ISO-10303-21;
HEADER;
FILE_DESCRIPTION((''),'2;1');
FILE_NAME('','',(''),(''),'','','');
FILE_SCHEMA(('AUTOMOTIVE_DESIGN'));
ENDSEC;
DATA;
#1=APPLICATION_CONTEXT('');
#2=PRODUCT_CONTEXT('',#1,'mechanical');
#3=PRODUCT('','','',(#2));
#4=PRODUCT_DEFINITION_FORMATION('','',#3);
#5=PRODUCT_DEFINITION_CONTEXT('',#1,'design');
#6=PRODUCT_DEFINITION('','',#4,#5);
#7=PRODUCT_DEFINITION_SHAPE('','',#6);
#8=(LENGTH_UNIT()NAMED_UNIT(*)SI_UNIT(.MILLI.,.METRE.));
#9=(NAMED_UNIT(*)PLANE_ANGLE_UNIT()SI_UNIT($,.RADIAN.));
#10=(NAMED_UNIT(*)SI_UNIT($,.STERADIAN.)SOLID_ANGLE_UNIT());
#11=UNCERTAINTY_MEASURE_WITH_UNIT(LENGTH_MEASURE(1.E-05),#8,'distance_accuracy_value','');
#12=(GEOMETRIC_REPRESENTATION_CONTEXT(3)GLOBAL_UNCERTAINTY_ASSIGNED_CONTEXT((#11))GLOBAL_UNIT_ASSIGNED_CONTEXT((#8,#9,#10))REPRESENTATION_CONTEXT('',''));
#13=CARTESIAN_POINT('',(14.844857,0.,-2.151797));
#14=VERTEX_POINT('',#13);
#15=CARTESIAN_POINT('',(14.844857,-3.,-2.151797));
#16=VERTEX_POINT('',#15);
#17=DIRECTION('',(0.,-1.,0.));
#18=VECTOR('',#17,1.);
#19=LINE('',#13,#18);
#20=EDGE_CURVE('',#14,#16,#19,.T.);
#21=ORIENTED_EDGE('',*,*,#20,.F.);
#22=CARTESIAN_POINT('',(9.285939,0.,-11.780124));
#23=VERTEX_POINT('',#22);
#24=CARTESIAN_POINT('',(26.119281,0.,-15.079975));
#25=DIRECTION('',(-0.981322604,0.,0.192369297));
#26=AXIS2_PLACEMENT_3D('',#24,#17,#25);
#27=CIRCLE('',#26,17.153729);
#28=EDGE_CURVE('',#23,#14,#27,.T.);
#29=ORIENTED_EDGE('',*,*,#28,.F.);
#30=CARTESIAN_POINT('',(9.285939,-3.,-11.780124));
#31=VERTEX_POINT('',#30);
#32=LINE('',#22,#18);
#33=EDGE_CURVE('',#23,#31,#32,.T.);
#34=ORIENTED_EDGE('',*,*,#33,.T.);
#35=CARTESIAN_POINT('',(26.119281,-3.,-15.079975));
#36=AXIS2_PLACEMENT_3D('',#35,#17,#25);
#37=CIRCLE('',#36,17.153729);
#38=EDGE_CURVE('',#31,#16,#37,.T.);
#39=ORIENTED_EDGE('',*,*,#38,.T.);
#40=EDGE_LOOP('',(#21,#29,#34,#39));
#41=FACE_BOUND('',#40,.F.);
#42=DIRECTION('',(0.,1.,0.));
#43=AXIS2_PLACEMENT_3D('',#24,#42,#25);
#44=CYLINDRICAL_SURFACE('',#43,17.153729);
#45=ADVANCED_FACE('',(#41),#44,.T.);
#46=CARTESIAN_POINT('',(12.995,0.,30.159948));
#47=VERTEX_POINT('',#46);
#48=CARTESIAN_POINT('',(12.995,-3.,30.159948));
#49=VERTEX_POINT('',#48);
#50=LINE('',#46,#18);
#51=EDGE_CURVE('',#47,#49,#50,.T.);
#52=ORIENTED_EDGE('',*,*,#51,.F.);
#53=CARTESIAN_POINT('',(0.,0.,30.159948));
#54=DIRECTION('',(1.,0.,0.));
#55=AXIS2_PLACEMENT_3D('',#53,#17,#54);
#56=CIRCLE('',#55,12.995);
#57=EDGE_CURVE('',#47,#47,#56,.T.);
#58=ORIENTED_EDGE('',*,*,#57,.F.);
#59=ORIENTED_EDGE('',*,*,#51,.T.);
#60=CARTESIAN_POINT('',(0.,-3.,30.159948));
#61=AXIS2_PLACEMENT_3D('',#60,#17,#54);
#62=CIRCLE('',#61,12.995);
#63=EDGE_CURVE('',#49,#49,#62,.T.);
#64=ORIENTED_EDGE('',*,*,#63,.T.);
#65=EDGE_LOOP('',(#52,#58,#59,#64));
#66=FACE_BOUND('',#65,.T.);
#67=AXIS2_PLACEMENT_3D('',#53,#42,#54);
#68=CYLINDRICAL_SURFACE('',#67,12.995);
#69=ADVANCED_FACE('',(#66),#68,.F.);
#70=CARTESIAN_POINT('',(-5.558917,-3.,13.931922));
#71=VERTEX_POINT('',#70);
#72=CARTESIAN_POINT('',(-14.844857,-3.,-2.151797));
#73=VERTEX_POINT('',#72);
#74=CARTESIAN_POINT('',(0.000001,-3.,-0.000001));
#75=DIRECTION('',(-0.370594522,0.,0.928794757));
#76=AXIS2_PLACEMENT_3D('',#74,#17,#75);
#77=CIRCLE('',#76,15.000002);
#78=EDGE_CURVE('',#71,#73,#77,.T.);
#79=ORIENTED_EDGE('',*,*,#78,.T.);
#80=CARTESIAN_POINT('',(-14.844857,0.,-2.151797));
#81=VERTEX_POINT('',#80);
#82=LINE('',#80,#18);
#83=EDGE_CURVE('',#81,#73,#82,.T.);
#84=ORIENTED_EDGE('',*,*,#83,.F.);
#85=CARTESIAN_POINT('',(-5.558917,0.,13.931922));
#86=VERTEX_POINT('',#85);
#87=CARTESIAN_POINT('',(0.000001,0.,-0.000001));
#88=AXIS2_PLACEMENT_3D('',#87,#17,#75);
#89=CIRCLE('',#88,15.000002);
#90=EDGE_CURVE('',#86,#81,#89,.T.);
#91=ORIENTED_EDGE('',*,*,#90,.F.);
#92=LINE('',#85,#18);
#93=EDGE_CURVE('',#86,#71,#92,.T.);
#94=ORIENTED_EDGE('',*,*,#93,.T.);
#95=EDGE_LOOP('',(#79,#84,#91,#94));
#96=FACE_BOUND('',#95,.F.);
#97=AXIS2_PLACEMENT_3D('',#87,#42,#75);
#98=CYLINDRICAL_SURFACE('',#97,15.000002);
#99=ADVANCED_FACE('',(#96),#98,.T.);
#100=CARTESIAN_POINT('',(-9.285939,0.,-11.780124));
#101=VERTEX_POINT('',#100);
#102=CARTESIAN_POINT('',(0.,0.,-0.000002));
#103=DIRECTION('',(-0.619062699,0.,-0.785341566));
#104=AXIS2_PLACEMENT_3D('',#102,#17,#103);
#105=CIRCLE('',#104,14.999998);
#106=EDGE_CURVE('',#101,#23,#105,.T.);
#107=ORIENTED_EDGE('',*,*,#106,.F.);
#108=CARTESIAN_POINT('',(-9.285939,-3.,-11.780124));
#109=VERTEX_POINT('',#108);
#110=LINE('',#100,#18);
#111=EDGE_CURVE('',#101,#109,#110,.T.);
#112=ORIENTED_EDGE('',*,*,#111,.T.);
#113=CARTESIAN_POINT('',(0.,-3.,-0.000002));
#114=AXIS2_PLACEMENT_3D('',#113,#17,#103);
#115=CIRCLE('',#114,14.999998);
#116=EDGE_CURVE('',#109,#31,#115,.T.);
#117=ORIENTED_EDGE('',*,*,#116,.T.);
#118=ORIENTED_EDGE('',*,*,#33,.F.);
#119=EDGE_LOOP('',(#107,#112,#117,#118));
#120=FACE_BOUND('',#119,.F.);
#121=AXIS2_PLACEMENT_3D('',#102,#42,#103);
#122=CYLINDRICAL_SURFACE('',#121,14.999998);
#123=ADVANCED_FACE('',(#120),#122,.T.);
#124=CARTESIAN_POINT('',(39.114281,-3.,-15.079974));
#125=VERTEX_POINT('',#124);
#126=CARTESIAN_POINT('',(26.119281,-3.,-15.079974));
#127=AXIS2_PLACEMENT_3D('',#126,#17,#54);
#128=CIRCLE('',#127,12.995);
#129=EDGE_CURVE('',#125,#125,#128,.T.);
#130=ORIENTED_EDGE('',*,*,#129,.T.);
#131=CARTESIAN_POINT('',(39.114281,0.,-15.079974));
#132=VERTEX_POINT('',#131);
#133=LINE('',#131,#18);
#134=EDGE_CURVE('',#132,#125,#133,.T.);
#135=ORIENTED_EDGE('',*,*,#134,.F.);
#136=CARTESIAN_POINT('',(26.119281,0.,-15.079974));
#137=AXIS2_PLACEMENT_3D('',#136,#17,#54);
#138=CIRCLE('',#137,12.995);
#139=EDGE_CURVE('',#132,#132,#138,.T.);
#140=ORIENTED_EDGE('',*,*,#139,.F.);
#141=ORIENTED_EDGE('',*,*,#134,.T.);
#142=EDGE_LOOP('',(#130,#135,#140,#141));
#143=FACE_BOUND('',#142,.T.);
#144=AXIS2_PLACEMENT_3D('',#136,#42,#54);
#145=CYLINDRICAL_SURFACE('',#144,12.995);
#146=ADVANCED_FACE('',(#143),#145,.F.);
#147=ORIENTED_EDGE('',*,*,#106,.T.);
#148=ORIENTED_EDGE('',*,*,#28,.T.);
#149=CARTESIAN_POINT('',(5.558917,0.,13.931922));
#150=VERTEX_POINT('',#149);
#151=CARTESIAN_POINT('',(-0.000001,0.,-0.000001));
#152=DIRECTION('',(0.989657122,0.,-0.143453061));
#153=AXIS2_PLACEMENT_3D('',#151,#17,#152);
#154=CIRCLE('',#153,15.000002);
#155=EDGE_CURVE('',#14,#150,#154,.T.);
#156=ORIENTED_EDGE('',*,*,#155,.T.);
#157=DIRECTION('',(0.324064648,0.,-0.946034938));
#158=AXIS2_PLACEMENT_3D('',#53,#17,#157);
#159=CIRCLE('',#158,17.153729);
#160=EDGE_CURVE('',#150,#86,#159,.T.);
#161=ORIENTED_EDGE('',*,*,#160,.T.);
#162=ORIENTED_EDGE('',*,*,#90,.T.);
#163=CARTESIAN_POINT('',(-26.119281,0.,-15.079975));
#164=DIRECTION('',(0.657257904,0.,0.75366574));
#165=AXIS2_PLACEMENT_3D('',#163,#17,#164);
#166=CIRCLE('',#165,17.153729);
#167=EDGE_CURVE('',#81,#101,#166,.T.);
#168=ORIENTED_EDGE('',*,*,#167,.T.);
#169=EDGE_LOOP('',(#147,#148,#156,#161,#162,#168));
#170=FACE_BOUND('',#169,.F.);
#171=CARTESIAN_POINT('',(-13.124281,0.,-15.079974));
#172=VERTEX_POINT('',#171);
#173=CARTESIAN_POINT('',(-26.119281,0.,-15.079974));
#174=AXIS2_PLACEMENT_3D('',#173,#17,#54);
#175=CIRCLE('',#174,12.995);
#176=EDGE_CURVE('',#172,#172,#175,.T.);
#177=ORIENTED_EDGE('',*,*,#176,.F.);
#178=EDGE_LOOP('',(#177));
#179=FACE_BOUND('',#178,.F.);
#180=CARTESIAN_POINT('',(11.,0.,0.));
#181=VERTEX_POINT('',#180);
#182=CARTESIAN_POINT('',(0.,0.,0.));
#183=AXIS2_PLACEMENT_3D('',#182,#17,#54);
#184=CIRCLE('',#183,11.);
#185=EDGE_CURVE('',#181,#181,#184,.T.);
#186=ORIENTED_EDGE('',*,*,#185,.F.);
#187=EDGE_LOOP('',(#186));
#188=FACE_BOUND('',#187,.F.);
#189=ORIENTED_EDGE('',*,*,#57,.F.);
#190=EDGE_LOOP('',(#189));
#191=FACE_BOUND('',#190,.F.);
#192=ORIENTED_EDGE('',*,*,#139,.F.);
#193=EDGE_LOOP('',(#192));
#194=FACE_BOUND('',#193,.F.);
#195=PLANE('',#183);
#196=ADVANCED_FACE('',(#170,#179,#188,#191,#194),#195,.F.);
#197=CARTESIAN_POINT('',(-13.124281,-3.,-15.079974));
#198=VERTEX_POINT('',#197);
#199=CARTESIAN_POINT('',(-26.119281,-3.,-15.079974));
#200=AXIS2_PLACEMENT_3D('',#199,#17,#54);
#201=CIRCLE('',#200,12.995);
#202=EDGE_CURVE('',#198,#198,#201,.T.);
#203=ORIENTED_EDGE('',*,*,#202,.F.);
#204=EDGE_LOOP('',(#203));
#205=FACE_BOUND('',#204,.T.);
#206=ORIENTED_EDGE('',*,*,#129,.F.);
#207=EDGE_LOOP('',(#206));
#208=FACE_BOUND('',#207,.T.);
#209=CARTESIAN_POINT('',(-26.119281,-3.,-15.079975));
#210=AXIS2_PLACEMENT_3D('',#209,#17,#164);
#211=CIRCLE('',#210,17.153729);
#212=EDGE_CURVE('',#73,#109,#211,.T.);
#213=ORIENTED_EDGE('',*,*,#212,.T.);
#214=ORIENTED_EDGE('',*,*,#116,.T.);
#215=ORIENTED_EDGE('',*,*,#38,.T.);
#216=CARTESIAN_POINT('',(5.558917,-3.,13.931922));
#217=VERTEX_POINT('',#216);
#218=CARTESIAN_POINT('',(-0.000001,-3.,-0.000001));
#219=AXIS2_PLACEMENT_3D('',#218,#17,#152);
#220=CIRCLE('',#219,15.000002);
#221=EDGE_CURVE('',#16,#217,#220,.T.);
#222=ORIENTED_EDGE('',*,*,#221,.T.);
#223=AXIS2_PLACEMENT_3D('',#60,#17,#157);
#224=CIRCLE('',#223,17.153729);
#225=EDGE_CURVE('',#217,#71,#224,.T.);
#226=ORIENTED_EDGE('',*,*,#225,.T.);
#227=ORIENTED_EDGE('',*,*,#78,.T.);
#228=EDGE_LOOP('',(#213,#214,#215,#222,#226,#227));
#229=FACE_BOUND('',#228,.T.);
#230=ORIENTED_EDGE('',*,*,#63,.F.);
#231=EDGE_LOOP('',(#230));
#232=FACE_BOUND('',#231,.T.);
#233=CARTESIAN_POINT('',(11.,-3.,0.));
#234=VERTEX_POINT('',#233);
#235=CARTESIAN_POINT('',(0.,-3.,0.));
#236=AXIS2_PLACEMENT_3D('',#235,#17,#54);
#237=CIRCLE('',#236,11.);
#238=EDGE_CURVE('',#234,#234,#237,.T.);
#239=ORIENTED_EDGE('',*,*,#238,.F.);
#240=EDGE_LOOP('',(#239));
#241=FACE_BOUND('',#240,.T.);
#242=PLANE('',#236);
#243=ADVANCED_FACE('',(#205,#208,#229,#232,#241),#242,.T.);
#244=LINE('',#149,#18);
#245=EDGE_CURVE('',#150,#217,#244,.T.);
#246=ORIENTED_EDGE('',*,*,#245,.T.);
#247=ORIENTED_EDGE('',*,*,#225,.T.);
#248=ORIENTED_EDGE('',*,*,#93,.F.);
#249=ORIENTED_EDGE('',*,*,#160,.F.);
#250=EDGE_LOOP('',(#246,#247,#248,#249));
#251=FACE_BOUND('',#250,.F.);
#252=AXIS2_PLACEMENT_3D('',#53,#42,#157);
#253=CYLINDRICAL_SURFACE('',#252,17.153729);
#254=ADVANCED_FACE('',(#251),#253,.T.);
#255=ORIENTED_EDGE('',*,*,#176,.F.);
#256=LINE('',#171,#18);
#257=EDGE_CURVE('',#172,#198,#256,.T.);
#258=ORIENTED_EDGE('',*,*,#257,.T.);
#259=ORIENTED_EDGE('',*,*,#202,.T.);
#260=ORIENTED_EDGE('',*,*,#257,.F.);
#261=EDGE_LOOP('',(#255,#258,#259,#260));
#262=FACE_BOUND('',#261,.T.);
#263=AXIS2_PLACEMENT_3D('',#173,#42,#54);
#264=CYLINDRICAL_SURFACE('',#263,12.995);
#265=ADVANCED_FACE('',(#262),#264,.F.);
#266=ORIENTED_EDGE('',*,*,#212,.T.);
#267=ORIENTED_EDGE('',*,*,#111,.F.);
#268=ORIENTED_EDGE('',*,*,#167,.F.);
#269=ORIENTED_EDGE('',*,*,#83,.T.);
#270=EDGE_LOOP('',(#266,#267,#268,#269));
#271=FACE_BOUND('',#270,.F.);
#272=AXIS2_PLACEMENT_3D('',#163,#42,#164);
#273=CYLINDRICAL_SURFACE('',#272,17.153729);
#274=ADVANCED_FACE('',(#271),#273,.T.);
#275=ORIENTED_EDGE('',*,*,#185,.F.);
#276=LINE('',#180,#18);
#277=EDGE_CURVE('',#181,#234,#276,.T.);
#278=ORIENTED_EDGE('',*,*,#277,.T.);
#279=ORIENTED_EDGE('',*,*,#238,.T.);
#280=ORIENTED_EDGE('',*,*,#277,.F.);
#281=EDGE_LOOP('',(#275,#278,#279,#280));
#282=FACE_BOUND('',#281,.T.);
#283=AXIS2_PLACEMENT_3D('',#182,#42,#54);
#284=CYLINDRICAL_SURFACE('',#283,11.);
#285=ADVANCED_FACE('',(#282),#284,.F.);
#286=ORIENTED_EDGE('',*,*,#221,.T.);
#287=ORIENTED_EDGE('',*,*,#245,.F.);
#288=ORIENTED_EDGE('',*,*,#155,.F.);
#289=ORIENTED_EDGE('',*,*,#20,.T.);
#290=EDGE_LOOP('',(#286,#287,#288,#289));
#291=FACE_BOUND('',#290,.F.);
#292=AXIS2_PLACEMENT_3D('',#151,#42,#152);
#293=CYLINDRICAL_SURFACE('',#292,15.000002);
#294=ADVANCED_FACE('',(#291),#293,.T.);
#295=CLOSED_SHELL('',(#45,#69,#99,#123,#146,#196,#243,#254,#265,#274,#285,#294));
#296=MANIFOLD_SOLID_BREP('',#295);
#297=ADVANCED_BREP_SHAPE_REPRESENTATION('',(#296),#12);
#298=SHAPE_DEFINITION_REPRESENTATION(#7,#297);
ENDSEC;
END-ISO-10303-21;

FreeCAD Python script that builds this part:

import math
import FreeCAD as App
import Part
import Sketcher

V = App.Vector
Q = App.Units.Quantity

doc = App.newDocument("Part")
body = doc.addObject("PartDesign::Body", "Body")

sketch1 = doc.addObject("Sketcher::SketchObject", "Sketch")
body.addObject(sketch1)
sketch1.AttachmentSupport = (doc.XZ_Plane, [""])
sketch1.MapMode = "FlatFace"
sketch1.addGeometry([
    Part.ArcOfCircle(Part.Circle(V(0, 30, 0), V(0, 0, 1), 17), math.radians(-71), math.radians(251)),
    Part.ArcOfCircle(Part.Circle(V(0, 0, 0), V(0, 0, 1), 15), math.radians(112), math.radians(188)),
    Part.ArcOfCircle(Part.Circle(V(-26, -15, 0), V(0, 0, 1), 17), math.radians(49), math.radians(371)),
    Part.ArcOfCircle(Part.Circle(V(0, 0, 0), V(0, 0, 1), 15), math.radians(-128), math.radians(-52)),
    Part.ArcOfCircle(Part.Circle(V(26, -15, 0), V(0, 0, 1), 17), math.radians(169), math.radians(491)),
    Part.ArcOfCircle(Part.Circle(V(0, 0, 0), V(0, 0, 1), 15), math.radians(-8), math.radians(68)),
    Part.Circle(V(-26, -15, 0), V(0, 0, 1), 13),
    Part.Circle(V(26, -15, 0), V(0, 0, 1), 13),
    Part.Circle(V(0, 0, 0), V(0, 0, 1), 11),
    Part.Circle(V(0, 30, 0), V(0, 0, 1), 13),
], False)
sketch1.addConstraint([
    Sketcher.Constraint("Coincident", 0, 2, 1, 1),
    Sketcher.Constraint("Coincident", 1, 2, 2, 1),
    Sketcher.Constraint("Coincident", 2, 2, 3, 1),
    Sketcher.Constraint("Coincident", 3, 2, 4, 1),
    Sketcher.Constraint("Coincident", 4, 2, 5, 1),
    Sketcher.Constraint("Coincident", 5, 2, 0, 1),
    Sketcher.Constraint("Coincident", 1, 3, -1, 1),
    Sketcher.Constraint("Coincident", 3, 3, -1, 1),
    Sketcher.Constraint("Coincident", 5, 3, -1, 1),
    Sketcher.Constraint("Coincident", 8, 3, -1, 1),
    Sketcher.Constraint("Coincident", 6, 3, 2, 3),
    Sketcher.Constraint("Coincident", 7, 3, 4, 3),
    Sketcher.Constraint("Coincident", 9, 3, 0, 3),
    Sketcher.Constraint("Equal", 0, 2),
    Sketcher.Constraint("Equal", 2, 4),
    Sketcher.Constraint("Equal", 1, 5),
    Sketcher.Constraint("Equal", 6, 7),
    Sketcher.Constraint("Equal", 7, 9),
    Sketcher.Constraint("Symmetric", 2, 3, 4, 3, -2),
    Sketcher.Constraint("PointOnObject", 0, 3, -2),
    Sketcher.Constraint("Diameter", 8, Q("22 mm")),
    Sketcher.Constraint("Radius", 1, Q("15.000002 mm")),
    Sketcher.Constraint("Diameter", 6, Q("25.99 mm")),
    Sketcher.Constraint("Radius", 0, Q("17.153729 mm")),
    Sketcher.Constraint("Radius", 3, Q("14.999998 mm")),
    Sketcher.Constraint("DistanceY", -1, 1, 0, 3, Q("30.159948 mm")),
    Sketcher.Constraint("DistanceX", 2, 3, -1, 1, Q("26.119281 mm")),
    Sketcher.Constraint("DistanceX", 2, 2, -1, 1, Q("9.285939 mm")),
])
pad1 = doc.addObject("PartDesign::Pad", "Pad")
body.addObject(pad1)
pad1.Profile = sketch1
pad1.Length = 3

doc.recompute()
